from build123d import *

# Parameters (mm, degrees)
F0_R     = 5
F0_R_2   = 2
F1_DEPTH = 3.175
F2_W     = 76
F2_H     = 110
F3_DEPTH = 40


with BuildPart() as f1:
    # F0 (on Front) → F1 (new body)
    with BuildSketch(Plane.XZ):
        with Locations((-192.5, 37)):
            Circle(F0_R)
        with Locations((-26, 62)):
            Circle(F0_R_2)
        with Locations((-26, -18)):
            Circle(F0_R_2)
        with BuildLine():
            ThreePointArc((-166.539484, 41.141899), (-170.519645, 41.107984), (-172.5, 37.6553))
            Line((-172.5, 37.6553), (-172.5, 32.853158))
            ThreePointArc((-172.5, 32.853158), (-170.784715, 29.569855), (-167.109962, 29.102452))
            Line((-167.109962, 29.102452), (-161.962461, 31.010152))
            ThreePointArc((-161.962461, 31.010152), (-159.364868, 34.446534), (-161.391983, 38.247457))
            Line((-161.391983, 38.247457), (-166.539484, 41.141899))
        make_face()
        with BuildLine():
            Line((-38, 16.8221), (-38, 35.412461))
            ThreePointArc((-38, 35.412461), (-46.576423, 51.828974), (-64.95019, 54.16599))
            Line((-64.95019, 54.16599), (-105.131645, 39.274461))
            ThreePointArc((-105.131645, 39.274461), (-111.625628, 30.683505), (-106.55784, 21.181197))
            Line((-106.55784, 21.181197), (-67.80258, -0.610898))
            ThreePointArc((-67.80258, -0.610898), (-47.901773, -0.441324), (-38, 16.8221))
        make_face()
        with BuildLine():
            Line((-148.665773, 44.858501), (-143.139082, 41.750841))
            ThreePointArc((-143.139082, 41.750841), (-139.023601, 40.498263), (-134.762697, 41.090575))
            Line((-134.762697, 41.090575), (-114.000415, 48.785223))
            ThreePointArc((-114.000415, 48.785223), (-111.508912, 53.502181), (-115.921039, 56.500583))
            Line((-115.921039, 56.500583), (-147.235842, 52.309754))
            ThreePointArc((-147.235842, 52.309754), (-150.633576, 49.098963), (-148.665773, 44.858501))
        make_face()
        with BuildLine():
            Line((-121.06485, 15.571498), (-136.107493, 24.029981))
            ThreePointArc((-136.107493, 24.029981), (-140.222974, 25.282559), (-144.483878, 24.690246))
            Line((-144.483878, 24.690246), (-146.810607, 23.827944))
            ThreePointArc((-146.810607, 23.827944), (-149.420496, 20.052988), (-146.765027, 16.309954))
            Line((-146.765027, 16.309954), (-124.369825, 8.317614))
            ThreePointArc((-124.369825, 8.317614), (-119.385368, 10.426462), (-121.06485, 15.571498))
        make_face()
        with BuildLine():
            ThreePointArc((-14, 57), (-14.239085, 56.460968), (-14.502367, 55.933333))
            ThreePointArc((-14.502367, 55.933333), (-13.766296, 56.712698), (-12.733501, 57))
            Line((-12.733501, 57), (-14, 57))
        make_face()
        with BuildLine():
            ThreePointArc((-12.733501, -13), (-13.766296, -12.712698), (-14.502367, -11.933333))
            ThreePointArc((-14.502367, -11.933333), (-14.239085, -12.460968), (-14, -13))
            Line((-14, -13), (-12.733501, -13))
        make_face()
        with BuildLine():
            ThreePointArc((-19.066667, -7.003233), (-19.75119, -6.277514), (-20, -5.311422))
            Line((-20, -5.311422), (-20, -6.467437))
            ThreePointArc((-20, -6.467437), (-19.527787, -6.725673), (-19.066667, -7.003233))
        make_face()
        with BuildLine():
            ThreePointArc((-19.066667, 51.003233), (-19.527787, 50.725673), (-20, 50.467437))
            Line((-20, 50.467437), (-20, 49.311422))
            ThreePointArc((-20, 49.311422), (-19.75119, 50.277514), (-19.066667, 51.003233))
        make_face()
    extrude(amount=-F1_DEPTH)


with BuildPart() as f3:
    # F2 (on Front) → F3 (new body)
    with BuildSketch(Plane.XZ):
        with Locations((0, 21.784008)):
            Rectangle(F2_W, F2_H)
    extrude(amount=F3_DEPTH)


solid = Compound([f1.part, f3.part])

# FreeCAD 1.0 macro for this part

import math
import FreeCAD as App
import Part
import Sketcher

V = App.Vector


def add_polygon(sketch, points):
    """Adds a closed chain of lines whose ends are joined by coincident constraints."""
    first, n = sketch.GeometryCount, len(points)
    for a, b in zip(points, points[1:] + points[:1]):
        sketch.addGeometry(Part.LineSegment(App.Vector(*a, 0), App.Vector(*b, 0)), False)
    for i in range(n):
        sketch.addConstraint(Sketcher.Constraint("Coincident", first + i, 2, first + (i + 1) % n, 1))

doc = App.newDocument("Part")
params = doc.addObject("Spreadsheet::Sheet", "Params")
for row, (alias, value) in enumerate([
    ("sketch1_diameter", "10 mm"),
    ("sketch1_diameter2", "4 mm"),
    ("sketch1_diameter3", "4 mm"),
    ("sketch1_radius", "4 mm"),
    ("sketch1_radius2", "4 mm"),
    ("pad1_length", "3.175 mm"),
    ("sketch2_width", "76 mm"),
    ("sketch2_height", "110 mm"),
    ("pad2_length", "40 mm"),
], start=1):
    params.set(f"A{row}", alias)
    params.set(f"B{row}", "=" + value)
    params.setAlias(f"B{row}", alias)

body = doc.addObject("PartDesign::Body", "Body")
body.AllowCompound = True

sketch1 = doc.addObject("Sketcher::SketchObject", "Sketch")
body.addObject(sketch1)
sketch1.AttachmentSupport = (doc.XZ_Plane, [""])
sketch1.MapMode = "FlatFace"
sketch1.addGeometry([
    Part.Circle(V(-192.5, 37, 0), V(0, 0, 1), 5),
    Part.Circle(V(-26, 62, 0), V(0, 0, 1), 2),
    Part.Circle(V(-26, -18, 0), V(0, 0, 1), 2),
    Part.ArcOfCircle(Part.Circle(V(-168.5, 37.655299, 0), V(0, 0, 1), 4), math.radians(60.650948), math.radians(179.999982)),
    Part.LineSegment(V(-172.5, 37.6553, 0), V(-172.5, 32.853158, 0)),
    Part.ArcOfCircle(Part.Circle(V(-168.5, 32.853158, 0), V(0, 0, 1), 4), math.radians(179.999997), math.radians(290.335061)),
    Part.LineSegment(V(-167.109962, 29.102452, 0), V(-161.962461, 31.010152, 0)),
    Part.ArcOfCircle(Part.Circle(V(-163.352499, 34.760858, 0), V(0, 0, 1), 4), math.radians(-69.664944), math.radians(60.650943)),
    Part.LineSegment(V(-161.391983, 38.247457, 0), V(-166.539484, 41.141899, 0)),
    Part.LineSegment(V(-38, 16.8221, 0), V(-38, 35.412461, 0)),
    Part.ArcOfCircle(Part.Circle(V(-57.999999, 35.412462, 0), V(0, 0, 1), 19.999999), math.radians(-0.000002), math.radians(110.335063)),
    Part.LineSegment(V(-64.95019, 54.16599, 0), V(-105.131645, 39.274461, 0)),
    Part.ArcOfCircle(Part.Circle(V(-101.656551, 29.897696, 0), V(0, 0, 1), 10), math.radians(110.335056), math.radians(240.650944)),
    Part.LineSegment(V(-106.55784, 21.181197, 0), V(-67.80258, -0.610898, 0)),
    Part.ArcOfCircle(Part.Circle(V(-58, 16.8221, 0), V(0, 0, 1), 20), math.radians(-119.349061), math.radians(0)),
    Part.LineSegment(V(-148.665773, 44.858501, 0), V(-143.139082, 41.750841, 0)),
    Part.ArcOfCircle(Part.Circle(V(-138.237791, 50.467346, 0), V(0, 0, 1), 10.000005), math.radians(-119.34905), math.radians(-69.664957)),
    Part.LineSegment(V(-134.762697, 41.090575, 0), V(-114.000415, 48.785223, 0)),
    Part.ArcOfCircle(Part.Circle(V(-115.390453, 52.535929, 0), V(0, 0, 1), 4), math.radians(-69.664943), math.radians(97.622552)),
    Part.LineSegment(V(-115.921039, 56.500583, 0), V(-147.235842, 52.309754, 0)),
    Part.ArcOfCircle(Part.Circle(V(-146.705257, 48.3451, 0), V(0, 0, 1), 4), math.radians(97.622535), math.radians(240.650939)),
    Part.LineSegment(V(-121.06485, 15.571498, 0), V(-136.107493, 24.029981, 0)),
    Part.ArcOfCircle(Part.Circle(V(-141.008782, 15.313481, 0), V(0, 0, 1), 10), math.radians(60.650944), math.radians(110.335063)),
    Part.LineSegment(V(-144.483878, 24.690246, 0), V(-146.810607, 23.827944, 0)),
    Part.ArcOfCircle(Part.Circle(V(-145.42057, 20.077238, 0), V(0, 0, 1), 3.999999), math.radians(110.335047), math.radians(250.359689)),
    Part.LineSegment(V(-146.765027, 16.309954, 0), V(-124.369825, 8.317614, 0)),
    Part.ArcOfCircle(Part.Circle(V(-123.025367, 12.084899, 0), V(0, 0, 1), 4), math.radians(-109.64033), math.radians(60.650931)),
    Part.ArcOfCircle(Part.Circle(V(-26.000321, 62.000145, 0), V(0, 0, 1), 13.000352), math.radians(-27.818045), math.radians(-22.619911)),
    Part.ArcOfCircle(Part.Circle(V(-12.733502, 55.000002, 0), V(0, 0, 1), 1.999998), math.radians(89.999983), math.radians(152.181909)),
    Part.LineSegment(V(-12.733501, 57, 0), V(-14, 57, 0)),
    Part.ArcOfCircle(Part.Circle(V(-12.733502, -11.000002, 0), V(0, 0, 1), 1.999998), math.radians(-152.181909), math.radians(-89.999983)),
    Part.ArcOfCircle(Part.Circle(V(-26.000321, -18.000145, 0), V(0, 0, 1), 13.000352), math.radians(22.619911), math.radians(27.818045)),
    Part.LineSegment(V(-14, -13, 0), V(-12.733501, -13, 0)),
    Part.ArcOfCircle(Part.Circle(V(-17.999997, -5.311421, 0), V(0, 0, 1), 2.000003), math.radians(-179.999983), math.radians(-122.231006)),
    Part.LineSegment(V(-20, -5.311422, 0), V(-20, -6.467437, 0)),
    Part.ArcOfCircle(Part.Circle(V(-26.000225, -18.000374, 0), V(0, 0, 1), 13.000436), math.radians(57.76909), math.radians(62.513457)),
    Part.ArcOfCircle(Part.Circle(V(-26.000225, 62.000374, 0), V(0, 0, 1), 13.000436), math.radians(-62.513457), math.radians(-57.76909)),
    Part.LineSegment(V(-20, 50.467437, 0), V(-20, 49.311422, 0)),
    Part.ArcOfCircle(Part.Circle(V(-17.999997, 49.311421, 0), V(0, 0, 1), 2.000003), math.radians(122.231006), math.radians(179.999983)),
], False)
sketch1.addConstraint([
    Sketcher.Constraint("Coincident", 3, 2, 4, 1),
    Sketcher.Constraint("Coincident", 4, 2, 5, 1),
    Sketcher.Constraint("Coincident", 5, 2, 6, 1),
    Sketcher.Constraint("Coincident", 6, 2, 7, 1),
    Sketcher.Constraint("Coincident", 7, 2, 8, 1),
    Sketcher.Constraint("Coincident", 8, 2, 3, 1),
    Sketcher.Constraint("Coincident", 9, 2, 10, 1),
    Sketcher.Constraint("Coincident", 10, 2, 11, 1),
    Sketcher.Constraint("Coincident", 11, 2, 12, 1),
    Sketcher.Constraint("Coincident", 12, 2, 13, 1),
    Sketcher.Constraint("Coincident", 13, 2, 14, 1),
    Sketcher.Constraint("Coincident", 14, 2, 9, 1),
    Sketcher.Constraint("Coincident", 15, 2, 16, 1),
    Sketcher.Constraint("Coincident", 16, 2, 17, 1),
    Sketcher.Constraint("Coincident", 17, 2, 18, 1),
    Sketcher.Constraint("Coincident", 18, 2, 19, 1),
    Sketcher.Constraint("Coincident", 19, 2, 20, 1),
    Sketcher.Constraint("Coincident", 20, 2, 15, 1),
    Sketcher.Constraint("Coincident", 21, 2, 22, 1),
    Sketcher.Constraint("Coincident", 22, 2, 23, 1),
    Sketcher.Constraint("Coincident", 23, 2, 24, 1),
    Sketcher.Constraint("Coincident", 24, 2, 25, 1),
    Sketcher.Constraint("Coincident", 25, 2, 26, 1),
    Sketcher.Constraint("Coincident", 26, 2, 21, 1),
    Sketcher.Constraint("Coincident", 27, 1, 28, 2),
    Sketcher.Constraint("Coincident", 28, 1, 29, 1),
    Sketcher.Constraint("Coincident", 29, 2, 27, 2),
    Sketcher.Constraint("Coincident", 30, 1, 31, 2),
    Sketcher.Constraint("Coincident", 31, 1, 32, 1),
    Sketcher.Constraint("Coincident", 32, 2, 30, 2),
    Sketcher.Constraint("Coincident", 33, 1, 34, 1),
    Sketcher.Constraint("Coincident", 34, 2, 35, 2),
    Sketcher.Constraint("Coincident", 35, 1, 33, 2),
    Sketcher.Constraint("Coincident", 36, 1, 37, 1),
    Sketcher.Constraint("Coincident", 37, 2, 38, 2),
    Sketcher.Constraint("Coincident", 38, 1, 36, 2),
    Sketcher.Constraint("Vertical", 4),
    Sketcher.Constraint("Vertical", 9),
    Sketcher.Constraint("Horizontal", 29),
    Sketcher.Constraint("Horizontal", 32),
    Sketcher.Constraint("Vertical", 34),
    Sketcher.Constraint("Vertical", 37),
    Sketcher.Constraint("Diameter", 0, 10.0),
    Sketcher.Constraint("Diameter", 1, 4.0),
    Sketcher.Constraint("Diameter", 2, 4.0),
    Sketcher.Constraint("Radius", 3, 4.0),
    Sketcher.Constraint("Radius", 5, 4.0),
    Sketcher.Constraint("Radius", 7, 4.0),
    Sketcher.Constraint("Radius", 10, 19.999999),
    Sketcher.Constraint("Radius", 12, 10.0),
    Sketcher.Constraint("Radius", 14, 20.0),
    Sketcher.Constraint("Radius", 18, 4.0),
    Sketcher.Constraint("Radius", 20, 4.0),
    Sketcher.Constraint("Radius", 22, 10.0),
    Sketcher.Constraint("Radius", 24, 3.999999),
    Sketcher.Constraint("Radius", 26, 4.0),
    Sketcher.Constraint("DistanceY", -1, 1, 0, 3, 37.0),
    Sketcher.Constraint("DistanceX", 1, 3, -1, 1, 26.0),
    Sketcher.Constraint("DistanceY", -1, 1, 1, 3, 62.0),
    Sketcher.Constraint("DistanceX", 2, 3, -1, 1, 26.0),
    Sketcher.Constraint("DistanceY", 2, 3, -1, 1, 18.0),
    Sketcher.Constraint("DistanceX", 10, 3, -1, 1, 57.999999),
    Sketcher.Constraint("DistanceY", -1, 1, 28, 1, 57.0),
    Sketcher.Constraint("DistanceX", 29, 2, -1, 1, 14.0),
    Sketcher.Constraint("DistanceX", 31, 1, -1, 1, 14.0),
    Sketcher.Constraint("DistanceY", 31, 1, -1, 1, 13.0),
    Sketcher.Constraint("DistanceX", 33, 1, -1, 1, 20.0),
    Sketcher.Constraint("DistanceX", 36, 1, -1, 1, 20.0),
    Sketcher.Constraint("DistanceX", 0, 3, 3, 3, 24.0),
    Sketcher.Constraint("DistanceX", 0, 3, -1, 1, 192.5),
    Sketcher.Constraint("Radius", 27, 13.000352),
    Sketcher.Constraint("Radius", 31, 13.000352),
    Sketcher.Constraint("DistanceX", 29, 2, 29, 1, 1.266499),
    Sketcher.Constraint("DistanceX", 32, 1, 32, 2, 1.266499),
    Sketcher.Constraint("Radius", 16, 10.000005),
    Sketcher.Constraint("Radius", 28, 1.999998),
    Sketcher.Constraint("Radius", 30, 1.999998),
    Sketcher.Constraint("Radius", 33, 2.000003),
    Sketcher.Constraint("Radius", 35, 13.000436),
    Sketcher.Constraint("Radius", 36, 13.000436),
    Sketcher.Constraint("Radius", 38, 2.000003),
    Sketcher.Constraint("DistanceY", 13, 2, 14, 3, 17.432998),
    Sketcher.Constraint("DistanceY", 4, 2, 4, 1, 4.802142),
    Sketcher.Constraint("DistanceY", 9, 1, 9, 2, 18.590361),
    Sketcher.Constraint("DistanceY", -1, 1, 3, 3, 37.655299),
    Sketcher.Constraint("DistanceX", 7, 3, -1, 1, 163.352499),
    Sketcher.Constraint("DistanceY", -1, 1, 14, 3, 16.8221),
    Sketcher.Constraint("DistanceY", -1, 1, 20, 3, 48.3451),
    Sketcher.Constraint("DistanceY", -1, 1, 26, 3, 12.084899),
    Sketcher.Constraint("DistanceX", 28, 3, -1, 1, 12.733502),
    Sketcher.Constraint("DistanceX", 30, 3, -1, 1, 12.733502),
    Sketcher.Constraint("DistanceY", -1, 1, 3, 2, 37.6553),
    Sketcher.Constraint("DistanceY", -1, 1, 8, 2, 41.141899),
    Sketcher.Constraint("DistanceY", -1, 1, 14, 2, 16.8221),
    Sketcher.Constraint("DistanceY", -1, 1, 20, 2, 44.858501),
    Sketcher.Constraint("DistanceY", -1, 1, 26, 2, 15.571498),
    Sketcher.Constraint("DistanceY", 5, 3, 7, 3, 1.9077),
    Sketcher.Constraint("DistanceY", 4, 2, 7, 3, 1.9077),
    Sketcher.Constraint("DistanceX", 5, 2, 6, 2, 5.147501),
    Sketcher.Constraint("DistanceY", 7, 3, 7, 2, 3.486599),
    Sketcher.Constraint("DistanceY", 12, 2, 12, 3, 8.716499),
    Sketcher.Constraint("DistanceY", 26, 3, 12, 2, 9.096298),
    Sketcher.Constraint("DistanceX", 7, 2, 15, 2, 18.252901),
    Sketcher.Constraint("DistanceY", 22, 3, 21, 2, 8.7165),
    Sketcher.Constraint("DistanceY", 23, 2, 22, 2, 0.862302),
    Sketcher.Constraint("DistanceX", 24, 2, 25, 2, 22.395202),
    Sketcher.Constraint("DistanceX", 35, 1, 30, 1, 4.5643),
    Sketcher.Constraint("DistanceY", 30, 1, 35, 1, 4.9301),
    Sketcher.Constraint("DistanceX", 38, 1, 27, 1, 4.5643),
    Sketcher.Constraint("DistanceY", 38, 1, 27, 1, 4.9301),
    Sketcher.Constraint("DistanceY", 34, 2, 34, 1, 1.156015),
    Sketcher.Constraint("DistanceY", 37, 2, 37, 1, 1.156015),
    Sketcher.Constraint("DistanceY", -1, 1, 10, 3, 35.412462),
    Sketcher.Constraint("DistanceX", 12, 3, -1, 1, 101.656551),
    Sketcher.Constraint("DistanceX", 16, 3, -1, 1, 138.237791),
    Sketcher.Constraint("DistanceY", -1, 1, 18, 3, 52.535929),
    Sketcher.Constraint("DistanceY", -1, 1, 22, 3, 15.313481),
    Sketcher.Constraint("DistanceX", 24, 3, -1, 1, 145.42057),
    Sketcher.Constraint("DistanceY", -1, 1, 24, 3, 20.077238),
    Sketcher.Constraint("DistanceY", 33, 3, -1, 1, 5.311421),
    Sketcher.Constraint("DistanceY", -1, 1, 38, 3, 49.311421),
    Sketcher.Constraint("DistanceX", 6, 2, -1, 1, 161.962461),
    Sketcher.Constraint("DistanceX", 10, 2, -1, 1, 64.95019),
    Sketcher.Constraint("DistanceY", -1, 1, 11, 2, 39.274461),
    Sketcher.Constraint("DistanceY", -1, 1, 15, 2, 41.750841),
    Sketcher.Constraint("DistanceX", 18, 2, -1, 1, 115.921039),
    Sketcher.Constraint("DistanceX", 19, 2, -1, 1, 147.235842),
    Sketcher.Constraint("DistanceX", 26, 2, -1, 1, 121.06485),
    Sketcher.Constraint("DistanceX", 16, 3, 18, 3, 22.847338),
    Sketcher.Constraint("DistanceX", 7, 3, 20, 3, 16.647241),
    Sketcher.Constraint("DistanceX", 22, 3, 16, 3, 2.770991),
    Sketcher.Constraint("DistanceY", 35, 3, 31, 3, 0.000229),
    Sketcher.Constraint("DistanceY", 27, 3, 36, 3, 0.000229),
    Sketcher.Constraint("DistanceY", 16, 2, 16, 3, 9.376771),
    Sketcher.Constraint("DistanceX", 17, 2, 11, 2, 8.86877),
    Sketcher.Constraint("DistanceY", 23, 2, 6, 2, 7.182208),
    Sketcher.Constraint("DistanceX", 23, 2, 24, 2, 0.04558),
])
sketch1.setExpression("Constraints[42]", "Params.sketch1_diameter")
sketch1.setExpression("Constraints[43]", "Params.sketch1_diameter2")
sketch1.setExpression("Constraints[44]", "Params.sketch1_diameter3")
sketch1.setExpression("Constraints[45]", "Params.sketch1_radius")
sketch1.setExpression("Constraints[46]", "Params.sketch1_radius2")
pad1 = doc.addObject("PartDesign::Pad", "Pad")
body.addObject(pad1)
pad1.Profile = sketch1
pad1.setExpression("Length", "Params.pad1_length")
pad1.Reversed = True
body2 = doc.addObject("PartDesign::Body", "Body001")

sketch2 = doc.addObject("Sketcher::SketchObject", "Sketch001")
body2.addObject(sketch2)
sketch2.AttachmentSupport = (doc.getObject("XZ_Plane001"), [""])
sketch2.MapMode = "FlatFace"
add_polygon(sketch2, [(-38, 76.784008), (-38, -33.215992), (38, -33.215992), (38, 76.784008)])
sketch2.addConstraint([
    Sketcher.Constraint("Vertical", 0),
    Sketcher.Constraint("Horizontal", 1),
    Sketcher.Constraint("Vertical", 2),
    Sketcher.Constraint("Horizontal", 3),
    Sketcher.Constraint("DistanceX", 1, 1, 1, 2, 76.0),
    Sketcher.Constraint("DistanceY", 0, 2, 0, 1, 110.0),
    Sketcher.Constraint("DistanceX", 0, 2, -1, 1, 38.0),
    Sketcher.Constraint("DistanceY", -1, 1, 2, 2, 76.784008),
])
sketch2.setExpression("Constraints[8]", "Params.sketch2_width")
sketch2.setExpression("Constraints[9]", "Params.sketch2_height")
pad2 = doc.addObject("PartDesign::Pad", "Pad001")
body2.addObject(pad2)
pad2.Profile = sketch2
pad2.setExpression("Length", "Params.pad2_length")

doc.recompute()
